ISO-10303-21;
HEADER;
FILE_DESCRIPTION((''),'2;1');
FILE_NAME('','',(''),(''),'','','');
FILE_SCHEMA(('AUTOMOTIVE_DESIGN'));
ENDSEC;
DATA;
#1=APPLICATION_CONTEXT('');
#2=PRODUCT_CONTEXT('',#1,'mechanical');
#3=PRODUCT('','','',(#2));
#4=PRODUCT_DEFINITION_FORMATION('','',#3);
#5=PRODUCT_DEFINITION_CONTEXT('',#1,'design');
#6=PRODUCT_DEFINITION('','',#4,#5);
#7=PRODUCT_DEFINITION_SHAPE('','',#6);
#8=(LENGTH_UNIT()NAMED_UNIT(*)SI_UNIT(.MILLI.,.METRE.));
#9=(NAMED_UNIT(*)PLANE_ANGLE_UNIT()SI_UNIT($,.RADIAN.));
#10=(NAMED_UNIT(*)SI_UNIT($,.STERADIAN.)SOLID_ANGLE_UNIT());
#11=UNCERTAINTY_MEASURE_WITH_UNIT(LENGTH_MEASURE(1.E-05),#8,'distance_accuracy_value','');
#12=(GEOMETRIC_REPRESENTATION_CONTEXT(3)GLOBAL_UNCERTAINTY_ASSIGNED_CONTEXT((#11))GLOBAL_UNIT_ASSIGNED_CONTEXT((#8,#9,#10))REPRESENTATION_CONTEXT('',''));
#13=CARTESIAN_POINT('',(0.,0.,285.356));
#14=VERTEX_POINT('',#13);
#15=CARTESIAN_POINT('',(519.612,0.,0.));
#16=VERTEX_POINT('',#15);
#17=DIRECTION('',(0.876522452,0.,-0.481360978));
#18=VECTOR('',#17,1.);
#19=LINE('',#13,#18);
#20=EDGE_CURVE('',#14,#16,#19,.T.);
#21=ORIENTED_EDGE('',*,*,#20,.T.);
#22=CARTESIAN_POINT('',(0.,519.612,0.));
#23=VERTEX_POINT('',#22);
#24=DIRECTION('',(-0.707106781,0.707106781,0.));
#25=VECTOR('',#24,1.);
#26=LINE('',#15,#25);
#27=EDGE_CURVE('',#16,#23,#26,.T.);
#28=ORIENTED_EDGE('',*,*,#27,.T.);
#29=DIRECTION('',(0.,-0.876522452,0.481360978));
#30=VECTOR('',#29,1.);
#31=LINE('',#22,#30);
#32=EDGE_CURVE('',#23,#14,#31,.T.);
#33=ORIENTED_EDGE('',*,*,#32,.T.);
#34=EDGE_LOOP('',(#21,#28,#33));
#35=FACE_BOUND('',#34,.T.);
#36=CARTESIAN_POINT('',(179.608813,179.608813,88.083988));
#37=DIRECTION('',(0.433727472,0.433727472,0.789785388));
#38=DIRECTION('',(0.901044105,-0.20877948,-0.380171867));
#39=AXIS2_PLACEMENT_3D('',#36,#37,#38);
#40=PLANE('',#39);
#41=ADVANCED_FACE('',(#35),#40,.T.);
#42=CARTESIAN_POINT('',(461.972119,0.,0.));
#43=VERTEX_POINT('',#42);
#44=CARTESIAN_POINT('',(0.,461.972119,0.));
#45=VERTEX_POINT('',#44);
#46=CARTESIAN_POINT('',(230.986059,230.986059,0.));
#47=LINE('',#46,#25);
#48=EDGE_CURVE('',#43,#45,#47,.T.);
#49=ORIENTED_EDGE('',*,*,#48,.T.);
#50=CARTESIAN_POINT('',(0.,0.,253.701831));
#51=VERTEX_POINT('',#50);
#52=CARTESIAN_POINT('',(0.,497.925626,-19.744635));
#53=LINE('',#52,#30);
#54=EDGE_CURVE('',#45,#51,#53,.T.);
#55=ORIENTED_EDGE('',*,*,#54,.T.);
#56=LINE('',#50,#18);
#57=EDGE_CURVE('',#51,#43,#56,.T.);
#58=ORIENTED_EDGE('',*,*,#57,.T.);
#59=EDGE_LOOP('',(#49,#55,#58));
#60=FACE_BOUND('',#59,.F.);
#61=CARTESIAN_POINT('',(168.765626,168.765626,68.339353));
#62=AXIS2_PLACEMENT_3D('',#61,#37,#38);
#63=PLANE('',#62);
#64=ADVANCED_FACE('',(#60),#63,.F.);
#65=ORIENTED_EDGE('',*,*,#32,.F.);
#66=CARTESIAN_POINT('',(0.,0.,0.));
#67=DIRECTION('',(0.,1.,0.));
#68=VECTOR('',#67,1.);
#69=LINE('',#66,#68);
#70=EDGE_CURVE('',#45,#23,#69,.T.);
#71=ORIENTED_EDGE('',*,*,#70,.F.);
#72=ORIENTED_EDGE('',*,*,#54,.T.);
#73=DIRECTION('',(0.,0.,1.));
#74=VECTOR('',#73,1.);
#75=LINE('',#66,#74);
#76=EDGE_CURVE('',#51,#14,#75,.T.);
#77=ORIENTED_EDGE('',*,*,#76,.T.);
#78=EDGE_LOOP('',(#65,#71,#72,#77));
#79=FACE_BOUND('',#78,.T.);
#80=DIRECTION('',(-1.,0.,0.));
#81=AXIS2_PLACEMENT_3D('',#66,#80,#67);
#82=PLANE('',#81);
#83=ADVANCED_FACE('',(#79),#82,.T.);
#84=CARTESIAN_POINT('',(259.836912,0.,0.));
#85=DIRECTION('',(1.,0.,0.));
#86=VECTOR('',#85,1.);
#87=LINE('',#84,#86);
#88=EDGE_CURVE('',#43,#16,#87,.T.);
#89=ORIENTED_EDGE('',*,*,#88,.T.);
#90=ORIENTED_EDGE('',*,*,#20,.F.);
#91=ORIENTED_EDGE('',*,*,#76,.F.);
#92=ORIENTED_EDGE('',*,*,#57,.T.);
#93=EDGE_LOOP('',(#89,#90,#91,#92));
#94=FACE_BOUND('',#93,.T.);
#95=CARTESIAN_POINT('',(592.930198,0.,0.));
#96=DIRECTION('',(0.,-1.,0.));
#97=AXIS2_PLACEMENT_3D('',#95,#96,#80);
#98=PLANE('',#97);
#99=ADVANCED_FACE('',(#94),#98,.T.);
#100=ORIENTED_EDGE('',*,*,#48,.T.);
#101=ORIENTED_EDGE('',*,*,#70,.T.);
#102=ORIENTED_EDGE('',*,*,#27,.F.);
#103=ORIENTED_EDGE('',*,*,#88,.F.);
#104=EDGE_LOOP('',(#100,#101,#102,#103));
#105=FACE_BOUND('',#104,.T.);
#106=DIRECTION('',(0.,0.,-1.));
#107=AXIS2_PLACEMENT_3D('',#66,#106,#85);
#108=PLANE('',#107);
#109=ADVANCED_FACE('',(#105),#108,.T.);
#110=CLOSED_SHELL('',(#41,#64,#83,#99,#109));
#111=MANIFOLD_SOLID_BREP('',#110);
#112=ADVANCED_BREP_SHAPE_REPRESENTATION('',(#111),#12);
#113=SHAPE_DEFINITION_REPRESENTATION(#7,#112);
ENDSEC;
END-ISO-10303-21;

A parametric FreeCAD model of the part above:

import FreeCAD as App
import Part
import Sketcher


def add_polygon(sketch, points):
    """Adds a closed chain of lines whose ends are joined by coincident constraints."""
    first, n = sketch.GeometryCount, len(points)
    for a, b in zip(points, points[1:] + points[:1]):
        sketch.addGeometry(Part.LineSegment(App.Vector(*a, 0), App.Vector(*b, 0)), False)
    for i in range(n):
        sketch.addConstraint(Sketcher.Constraint("Coincident", first + i, 2, first + (i + 1) % n, 1))

doc = App.newDocument("Part")
params = doc.addObject("Spreadsheet::Sheet", "Params")
for row, (alias, value) in enumerate([
    ("pad1_length", "25 mm"),
    ("sketch2_width", "45 mm"),
    ("pocket2_length", "544 mm"),
], start=1):
    params.set(f"A{row}", alias)
    params.set(f"B{row}", "=" + value)
    params.setAlias(f"B{row}", alias)

body = doc.addObject("PartDesign::Body", "Body")

# Sketch on an angled plane
sketch1 = body.newObject("Sketcher::SketchObject", "Sketch")
sketch1.Placement = App.Placement(App.Vector(97.74916, 97.74916, 177.993932), App.Rotation(App.Vector(0.901044105, -0.20877948, -0.380171867), App.Vector(0, 0.876522451, -0.481360978), App.Vector(0.433727472, 0.433727472, 0.789785388), "ZXY"))
add_polygon(sketch1, [(-108, 455), (-108, -137), (468, 0)])  # lines 0-2
sketch1.addConstraint([
    Sketcher.Constraint("Vertical", 0),
    Sketcher.Constraint("PointOnObject", 1, 2, -1),
    Sketcher.Constraint("DistanceY", 0, 2, 0, 1, 592.810826),
    Sketcher.Constraint("DistanceX", -1, 1, 1, 2, 468.193329),
    Sketcher.Constraint("Distance", 1, 592.810827),
    Sketcher.Constraint("Distance", 2, 734.842336),
])
pad1 = body.newObject("PartDesign::Pad", "Pad")
pad1.Profile = sketch1
pad1.setExpression("Length", "Params.pad1_length")
pad1.Reversed = True

# Sketch on XY plane
sketch2 = body.newObject("Sketcher::SketchObject", "Sketch001")
sketch2.AttachmentSupport = (doc.getObject("XY_Plane"), [""])
sketch2.MapMode = "FlatFace"
add_polygon(sketch2, [(0, 578), (-45, 578), (-45, -45), (593, -45), (593, 0), (0, 0)])  # lines 0-5
sketch2.addConstraint([
    Sketcher.Constraint("Horizontal", 0),
    Sketcher.Constraint("Vertical", 1),
    Sketcher.Constraint("Horizontal", 2),
    Sketcher.Constraint("Vertical", 3),
    Sketcher.Constraint("Horizontal", 4),
    Sketcher.Constraint("Vertical", 5),
    Sketcher.Constraint("Coincident", 4, 2, -1, 1),
    Sketcher.Constraint("Equal", 0, 3),
    Sketcher.Constraint("DistanceX", 0, 2, 0, 1, 45.0),
    Sketcher.Constraint("DistanceX", 2, 1, 2, 2, 637.930198),
    Sketcher.Constraint("DistanceY", 1, 2, 1, 1, 622.942014),
])
sketch2.setExpression("Constraints[14]", "Params.sketch2_width")
pocket1 = body.newObject("PartDesign::Pocket", "Pocket")
pocket1.Profile = sketch2
pocket1.Type = "ThroughAll"
pocket1.Midplane = True

# Sketch on XZ plane
sketch3 = body.newObject("Sketcher::SketchObject", "Sketch002")
sketch3.AttachmentSupport = (doc.getObject("XZ_Plane"), [""])
sketch3.MapMode = "FlatFace"
add_polygon(sketch3, [(0, 0), (0, -31), (520, -31), (520, 0)])  # lines 0-3
sketch3.addConstraint([
    Sketcher.Constraint("Vertical", 0),
    Sketcher.Constraint("Horizontal", 1),
    Sketcher.Constraint("Vertical", 2),
    Sketcher.Constraint("Horizontal", 3),
    Sketcher.Constraint("Coincident", 3, 2, -1, 1),
    Sketcher.Constraint("DistanceY", 0, 2, 0, 1, 31.413481),
    Sketcher.Constraint("DistanceX", 1, 1, 1, 2, 519.673824),
])
pocket2 = body.newObject("PartDesign::Pocket", "Pocket001")
pocket2.Profile = sketch3
pocket2.setExpression("Length", "Params.pocket2_length")

doc.recompute()
